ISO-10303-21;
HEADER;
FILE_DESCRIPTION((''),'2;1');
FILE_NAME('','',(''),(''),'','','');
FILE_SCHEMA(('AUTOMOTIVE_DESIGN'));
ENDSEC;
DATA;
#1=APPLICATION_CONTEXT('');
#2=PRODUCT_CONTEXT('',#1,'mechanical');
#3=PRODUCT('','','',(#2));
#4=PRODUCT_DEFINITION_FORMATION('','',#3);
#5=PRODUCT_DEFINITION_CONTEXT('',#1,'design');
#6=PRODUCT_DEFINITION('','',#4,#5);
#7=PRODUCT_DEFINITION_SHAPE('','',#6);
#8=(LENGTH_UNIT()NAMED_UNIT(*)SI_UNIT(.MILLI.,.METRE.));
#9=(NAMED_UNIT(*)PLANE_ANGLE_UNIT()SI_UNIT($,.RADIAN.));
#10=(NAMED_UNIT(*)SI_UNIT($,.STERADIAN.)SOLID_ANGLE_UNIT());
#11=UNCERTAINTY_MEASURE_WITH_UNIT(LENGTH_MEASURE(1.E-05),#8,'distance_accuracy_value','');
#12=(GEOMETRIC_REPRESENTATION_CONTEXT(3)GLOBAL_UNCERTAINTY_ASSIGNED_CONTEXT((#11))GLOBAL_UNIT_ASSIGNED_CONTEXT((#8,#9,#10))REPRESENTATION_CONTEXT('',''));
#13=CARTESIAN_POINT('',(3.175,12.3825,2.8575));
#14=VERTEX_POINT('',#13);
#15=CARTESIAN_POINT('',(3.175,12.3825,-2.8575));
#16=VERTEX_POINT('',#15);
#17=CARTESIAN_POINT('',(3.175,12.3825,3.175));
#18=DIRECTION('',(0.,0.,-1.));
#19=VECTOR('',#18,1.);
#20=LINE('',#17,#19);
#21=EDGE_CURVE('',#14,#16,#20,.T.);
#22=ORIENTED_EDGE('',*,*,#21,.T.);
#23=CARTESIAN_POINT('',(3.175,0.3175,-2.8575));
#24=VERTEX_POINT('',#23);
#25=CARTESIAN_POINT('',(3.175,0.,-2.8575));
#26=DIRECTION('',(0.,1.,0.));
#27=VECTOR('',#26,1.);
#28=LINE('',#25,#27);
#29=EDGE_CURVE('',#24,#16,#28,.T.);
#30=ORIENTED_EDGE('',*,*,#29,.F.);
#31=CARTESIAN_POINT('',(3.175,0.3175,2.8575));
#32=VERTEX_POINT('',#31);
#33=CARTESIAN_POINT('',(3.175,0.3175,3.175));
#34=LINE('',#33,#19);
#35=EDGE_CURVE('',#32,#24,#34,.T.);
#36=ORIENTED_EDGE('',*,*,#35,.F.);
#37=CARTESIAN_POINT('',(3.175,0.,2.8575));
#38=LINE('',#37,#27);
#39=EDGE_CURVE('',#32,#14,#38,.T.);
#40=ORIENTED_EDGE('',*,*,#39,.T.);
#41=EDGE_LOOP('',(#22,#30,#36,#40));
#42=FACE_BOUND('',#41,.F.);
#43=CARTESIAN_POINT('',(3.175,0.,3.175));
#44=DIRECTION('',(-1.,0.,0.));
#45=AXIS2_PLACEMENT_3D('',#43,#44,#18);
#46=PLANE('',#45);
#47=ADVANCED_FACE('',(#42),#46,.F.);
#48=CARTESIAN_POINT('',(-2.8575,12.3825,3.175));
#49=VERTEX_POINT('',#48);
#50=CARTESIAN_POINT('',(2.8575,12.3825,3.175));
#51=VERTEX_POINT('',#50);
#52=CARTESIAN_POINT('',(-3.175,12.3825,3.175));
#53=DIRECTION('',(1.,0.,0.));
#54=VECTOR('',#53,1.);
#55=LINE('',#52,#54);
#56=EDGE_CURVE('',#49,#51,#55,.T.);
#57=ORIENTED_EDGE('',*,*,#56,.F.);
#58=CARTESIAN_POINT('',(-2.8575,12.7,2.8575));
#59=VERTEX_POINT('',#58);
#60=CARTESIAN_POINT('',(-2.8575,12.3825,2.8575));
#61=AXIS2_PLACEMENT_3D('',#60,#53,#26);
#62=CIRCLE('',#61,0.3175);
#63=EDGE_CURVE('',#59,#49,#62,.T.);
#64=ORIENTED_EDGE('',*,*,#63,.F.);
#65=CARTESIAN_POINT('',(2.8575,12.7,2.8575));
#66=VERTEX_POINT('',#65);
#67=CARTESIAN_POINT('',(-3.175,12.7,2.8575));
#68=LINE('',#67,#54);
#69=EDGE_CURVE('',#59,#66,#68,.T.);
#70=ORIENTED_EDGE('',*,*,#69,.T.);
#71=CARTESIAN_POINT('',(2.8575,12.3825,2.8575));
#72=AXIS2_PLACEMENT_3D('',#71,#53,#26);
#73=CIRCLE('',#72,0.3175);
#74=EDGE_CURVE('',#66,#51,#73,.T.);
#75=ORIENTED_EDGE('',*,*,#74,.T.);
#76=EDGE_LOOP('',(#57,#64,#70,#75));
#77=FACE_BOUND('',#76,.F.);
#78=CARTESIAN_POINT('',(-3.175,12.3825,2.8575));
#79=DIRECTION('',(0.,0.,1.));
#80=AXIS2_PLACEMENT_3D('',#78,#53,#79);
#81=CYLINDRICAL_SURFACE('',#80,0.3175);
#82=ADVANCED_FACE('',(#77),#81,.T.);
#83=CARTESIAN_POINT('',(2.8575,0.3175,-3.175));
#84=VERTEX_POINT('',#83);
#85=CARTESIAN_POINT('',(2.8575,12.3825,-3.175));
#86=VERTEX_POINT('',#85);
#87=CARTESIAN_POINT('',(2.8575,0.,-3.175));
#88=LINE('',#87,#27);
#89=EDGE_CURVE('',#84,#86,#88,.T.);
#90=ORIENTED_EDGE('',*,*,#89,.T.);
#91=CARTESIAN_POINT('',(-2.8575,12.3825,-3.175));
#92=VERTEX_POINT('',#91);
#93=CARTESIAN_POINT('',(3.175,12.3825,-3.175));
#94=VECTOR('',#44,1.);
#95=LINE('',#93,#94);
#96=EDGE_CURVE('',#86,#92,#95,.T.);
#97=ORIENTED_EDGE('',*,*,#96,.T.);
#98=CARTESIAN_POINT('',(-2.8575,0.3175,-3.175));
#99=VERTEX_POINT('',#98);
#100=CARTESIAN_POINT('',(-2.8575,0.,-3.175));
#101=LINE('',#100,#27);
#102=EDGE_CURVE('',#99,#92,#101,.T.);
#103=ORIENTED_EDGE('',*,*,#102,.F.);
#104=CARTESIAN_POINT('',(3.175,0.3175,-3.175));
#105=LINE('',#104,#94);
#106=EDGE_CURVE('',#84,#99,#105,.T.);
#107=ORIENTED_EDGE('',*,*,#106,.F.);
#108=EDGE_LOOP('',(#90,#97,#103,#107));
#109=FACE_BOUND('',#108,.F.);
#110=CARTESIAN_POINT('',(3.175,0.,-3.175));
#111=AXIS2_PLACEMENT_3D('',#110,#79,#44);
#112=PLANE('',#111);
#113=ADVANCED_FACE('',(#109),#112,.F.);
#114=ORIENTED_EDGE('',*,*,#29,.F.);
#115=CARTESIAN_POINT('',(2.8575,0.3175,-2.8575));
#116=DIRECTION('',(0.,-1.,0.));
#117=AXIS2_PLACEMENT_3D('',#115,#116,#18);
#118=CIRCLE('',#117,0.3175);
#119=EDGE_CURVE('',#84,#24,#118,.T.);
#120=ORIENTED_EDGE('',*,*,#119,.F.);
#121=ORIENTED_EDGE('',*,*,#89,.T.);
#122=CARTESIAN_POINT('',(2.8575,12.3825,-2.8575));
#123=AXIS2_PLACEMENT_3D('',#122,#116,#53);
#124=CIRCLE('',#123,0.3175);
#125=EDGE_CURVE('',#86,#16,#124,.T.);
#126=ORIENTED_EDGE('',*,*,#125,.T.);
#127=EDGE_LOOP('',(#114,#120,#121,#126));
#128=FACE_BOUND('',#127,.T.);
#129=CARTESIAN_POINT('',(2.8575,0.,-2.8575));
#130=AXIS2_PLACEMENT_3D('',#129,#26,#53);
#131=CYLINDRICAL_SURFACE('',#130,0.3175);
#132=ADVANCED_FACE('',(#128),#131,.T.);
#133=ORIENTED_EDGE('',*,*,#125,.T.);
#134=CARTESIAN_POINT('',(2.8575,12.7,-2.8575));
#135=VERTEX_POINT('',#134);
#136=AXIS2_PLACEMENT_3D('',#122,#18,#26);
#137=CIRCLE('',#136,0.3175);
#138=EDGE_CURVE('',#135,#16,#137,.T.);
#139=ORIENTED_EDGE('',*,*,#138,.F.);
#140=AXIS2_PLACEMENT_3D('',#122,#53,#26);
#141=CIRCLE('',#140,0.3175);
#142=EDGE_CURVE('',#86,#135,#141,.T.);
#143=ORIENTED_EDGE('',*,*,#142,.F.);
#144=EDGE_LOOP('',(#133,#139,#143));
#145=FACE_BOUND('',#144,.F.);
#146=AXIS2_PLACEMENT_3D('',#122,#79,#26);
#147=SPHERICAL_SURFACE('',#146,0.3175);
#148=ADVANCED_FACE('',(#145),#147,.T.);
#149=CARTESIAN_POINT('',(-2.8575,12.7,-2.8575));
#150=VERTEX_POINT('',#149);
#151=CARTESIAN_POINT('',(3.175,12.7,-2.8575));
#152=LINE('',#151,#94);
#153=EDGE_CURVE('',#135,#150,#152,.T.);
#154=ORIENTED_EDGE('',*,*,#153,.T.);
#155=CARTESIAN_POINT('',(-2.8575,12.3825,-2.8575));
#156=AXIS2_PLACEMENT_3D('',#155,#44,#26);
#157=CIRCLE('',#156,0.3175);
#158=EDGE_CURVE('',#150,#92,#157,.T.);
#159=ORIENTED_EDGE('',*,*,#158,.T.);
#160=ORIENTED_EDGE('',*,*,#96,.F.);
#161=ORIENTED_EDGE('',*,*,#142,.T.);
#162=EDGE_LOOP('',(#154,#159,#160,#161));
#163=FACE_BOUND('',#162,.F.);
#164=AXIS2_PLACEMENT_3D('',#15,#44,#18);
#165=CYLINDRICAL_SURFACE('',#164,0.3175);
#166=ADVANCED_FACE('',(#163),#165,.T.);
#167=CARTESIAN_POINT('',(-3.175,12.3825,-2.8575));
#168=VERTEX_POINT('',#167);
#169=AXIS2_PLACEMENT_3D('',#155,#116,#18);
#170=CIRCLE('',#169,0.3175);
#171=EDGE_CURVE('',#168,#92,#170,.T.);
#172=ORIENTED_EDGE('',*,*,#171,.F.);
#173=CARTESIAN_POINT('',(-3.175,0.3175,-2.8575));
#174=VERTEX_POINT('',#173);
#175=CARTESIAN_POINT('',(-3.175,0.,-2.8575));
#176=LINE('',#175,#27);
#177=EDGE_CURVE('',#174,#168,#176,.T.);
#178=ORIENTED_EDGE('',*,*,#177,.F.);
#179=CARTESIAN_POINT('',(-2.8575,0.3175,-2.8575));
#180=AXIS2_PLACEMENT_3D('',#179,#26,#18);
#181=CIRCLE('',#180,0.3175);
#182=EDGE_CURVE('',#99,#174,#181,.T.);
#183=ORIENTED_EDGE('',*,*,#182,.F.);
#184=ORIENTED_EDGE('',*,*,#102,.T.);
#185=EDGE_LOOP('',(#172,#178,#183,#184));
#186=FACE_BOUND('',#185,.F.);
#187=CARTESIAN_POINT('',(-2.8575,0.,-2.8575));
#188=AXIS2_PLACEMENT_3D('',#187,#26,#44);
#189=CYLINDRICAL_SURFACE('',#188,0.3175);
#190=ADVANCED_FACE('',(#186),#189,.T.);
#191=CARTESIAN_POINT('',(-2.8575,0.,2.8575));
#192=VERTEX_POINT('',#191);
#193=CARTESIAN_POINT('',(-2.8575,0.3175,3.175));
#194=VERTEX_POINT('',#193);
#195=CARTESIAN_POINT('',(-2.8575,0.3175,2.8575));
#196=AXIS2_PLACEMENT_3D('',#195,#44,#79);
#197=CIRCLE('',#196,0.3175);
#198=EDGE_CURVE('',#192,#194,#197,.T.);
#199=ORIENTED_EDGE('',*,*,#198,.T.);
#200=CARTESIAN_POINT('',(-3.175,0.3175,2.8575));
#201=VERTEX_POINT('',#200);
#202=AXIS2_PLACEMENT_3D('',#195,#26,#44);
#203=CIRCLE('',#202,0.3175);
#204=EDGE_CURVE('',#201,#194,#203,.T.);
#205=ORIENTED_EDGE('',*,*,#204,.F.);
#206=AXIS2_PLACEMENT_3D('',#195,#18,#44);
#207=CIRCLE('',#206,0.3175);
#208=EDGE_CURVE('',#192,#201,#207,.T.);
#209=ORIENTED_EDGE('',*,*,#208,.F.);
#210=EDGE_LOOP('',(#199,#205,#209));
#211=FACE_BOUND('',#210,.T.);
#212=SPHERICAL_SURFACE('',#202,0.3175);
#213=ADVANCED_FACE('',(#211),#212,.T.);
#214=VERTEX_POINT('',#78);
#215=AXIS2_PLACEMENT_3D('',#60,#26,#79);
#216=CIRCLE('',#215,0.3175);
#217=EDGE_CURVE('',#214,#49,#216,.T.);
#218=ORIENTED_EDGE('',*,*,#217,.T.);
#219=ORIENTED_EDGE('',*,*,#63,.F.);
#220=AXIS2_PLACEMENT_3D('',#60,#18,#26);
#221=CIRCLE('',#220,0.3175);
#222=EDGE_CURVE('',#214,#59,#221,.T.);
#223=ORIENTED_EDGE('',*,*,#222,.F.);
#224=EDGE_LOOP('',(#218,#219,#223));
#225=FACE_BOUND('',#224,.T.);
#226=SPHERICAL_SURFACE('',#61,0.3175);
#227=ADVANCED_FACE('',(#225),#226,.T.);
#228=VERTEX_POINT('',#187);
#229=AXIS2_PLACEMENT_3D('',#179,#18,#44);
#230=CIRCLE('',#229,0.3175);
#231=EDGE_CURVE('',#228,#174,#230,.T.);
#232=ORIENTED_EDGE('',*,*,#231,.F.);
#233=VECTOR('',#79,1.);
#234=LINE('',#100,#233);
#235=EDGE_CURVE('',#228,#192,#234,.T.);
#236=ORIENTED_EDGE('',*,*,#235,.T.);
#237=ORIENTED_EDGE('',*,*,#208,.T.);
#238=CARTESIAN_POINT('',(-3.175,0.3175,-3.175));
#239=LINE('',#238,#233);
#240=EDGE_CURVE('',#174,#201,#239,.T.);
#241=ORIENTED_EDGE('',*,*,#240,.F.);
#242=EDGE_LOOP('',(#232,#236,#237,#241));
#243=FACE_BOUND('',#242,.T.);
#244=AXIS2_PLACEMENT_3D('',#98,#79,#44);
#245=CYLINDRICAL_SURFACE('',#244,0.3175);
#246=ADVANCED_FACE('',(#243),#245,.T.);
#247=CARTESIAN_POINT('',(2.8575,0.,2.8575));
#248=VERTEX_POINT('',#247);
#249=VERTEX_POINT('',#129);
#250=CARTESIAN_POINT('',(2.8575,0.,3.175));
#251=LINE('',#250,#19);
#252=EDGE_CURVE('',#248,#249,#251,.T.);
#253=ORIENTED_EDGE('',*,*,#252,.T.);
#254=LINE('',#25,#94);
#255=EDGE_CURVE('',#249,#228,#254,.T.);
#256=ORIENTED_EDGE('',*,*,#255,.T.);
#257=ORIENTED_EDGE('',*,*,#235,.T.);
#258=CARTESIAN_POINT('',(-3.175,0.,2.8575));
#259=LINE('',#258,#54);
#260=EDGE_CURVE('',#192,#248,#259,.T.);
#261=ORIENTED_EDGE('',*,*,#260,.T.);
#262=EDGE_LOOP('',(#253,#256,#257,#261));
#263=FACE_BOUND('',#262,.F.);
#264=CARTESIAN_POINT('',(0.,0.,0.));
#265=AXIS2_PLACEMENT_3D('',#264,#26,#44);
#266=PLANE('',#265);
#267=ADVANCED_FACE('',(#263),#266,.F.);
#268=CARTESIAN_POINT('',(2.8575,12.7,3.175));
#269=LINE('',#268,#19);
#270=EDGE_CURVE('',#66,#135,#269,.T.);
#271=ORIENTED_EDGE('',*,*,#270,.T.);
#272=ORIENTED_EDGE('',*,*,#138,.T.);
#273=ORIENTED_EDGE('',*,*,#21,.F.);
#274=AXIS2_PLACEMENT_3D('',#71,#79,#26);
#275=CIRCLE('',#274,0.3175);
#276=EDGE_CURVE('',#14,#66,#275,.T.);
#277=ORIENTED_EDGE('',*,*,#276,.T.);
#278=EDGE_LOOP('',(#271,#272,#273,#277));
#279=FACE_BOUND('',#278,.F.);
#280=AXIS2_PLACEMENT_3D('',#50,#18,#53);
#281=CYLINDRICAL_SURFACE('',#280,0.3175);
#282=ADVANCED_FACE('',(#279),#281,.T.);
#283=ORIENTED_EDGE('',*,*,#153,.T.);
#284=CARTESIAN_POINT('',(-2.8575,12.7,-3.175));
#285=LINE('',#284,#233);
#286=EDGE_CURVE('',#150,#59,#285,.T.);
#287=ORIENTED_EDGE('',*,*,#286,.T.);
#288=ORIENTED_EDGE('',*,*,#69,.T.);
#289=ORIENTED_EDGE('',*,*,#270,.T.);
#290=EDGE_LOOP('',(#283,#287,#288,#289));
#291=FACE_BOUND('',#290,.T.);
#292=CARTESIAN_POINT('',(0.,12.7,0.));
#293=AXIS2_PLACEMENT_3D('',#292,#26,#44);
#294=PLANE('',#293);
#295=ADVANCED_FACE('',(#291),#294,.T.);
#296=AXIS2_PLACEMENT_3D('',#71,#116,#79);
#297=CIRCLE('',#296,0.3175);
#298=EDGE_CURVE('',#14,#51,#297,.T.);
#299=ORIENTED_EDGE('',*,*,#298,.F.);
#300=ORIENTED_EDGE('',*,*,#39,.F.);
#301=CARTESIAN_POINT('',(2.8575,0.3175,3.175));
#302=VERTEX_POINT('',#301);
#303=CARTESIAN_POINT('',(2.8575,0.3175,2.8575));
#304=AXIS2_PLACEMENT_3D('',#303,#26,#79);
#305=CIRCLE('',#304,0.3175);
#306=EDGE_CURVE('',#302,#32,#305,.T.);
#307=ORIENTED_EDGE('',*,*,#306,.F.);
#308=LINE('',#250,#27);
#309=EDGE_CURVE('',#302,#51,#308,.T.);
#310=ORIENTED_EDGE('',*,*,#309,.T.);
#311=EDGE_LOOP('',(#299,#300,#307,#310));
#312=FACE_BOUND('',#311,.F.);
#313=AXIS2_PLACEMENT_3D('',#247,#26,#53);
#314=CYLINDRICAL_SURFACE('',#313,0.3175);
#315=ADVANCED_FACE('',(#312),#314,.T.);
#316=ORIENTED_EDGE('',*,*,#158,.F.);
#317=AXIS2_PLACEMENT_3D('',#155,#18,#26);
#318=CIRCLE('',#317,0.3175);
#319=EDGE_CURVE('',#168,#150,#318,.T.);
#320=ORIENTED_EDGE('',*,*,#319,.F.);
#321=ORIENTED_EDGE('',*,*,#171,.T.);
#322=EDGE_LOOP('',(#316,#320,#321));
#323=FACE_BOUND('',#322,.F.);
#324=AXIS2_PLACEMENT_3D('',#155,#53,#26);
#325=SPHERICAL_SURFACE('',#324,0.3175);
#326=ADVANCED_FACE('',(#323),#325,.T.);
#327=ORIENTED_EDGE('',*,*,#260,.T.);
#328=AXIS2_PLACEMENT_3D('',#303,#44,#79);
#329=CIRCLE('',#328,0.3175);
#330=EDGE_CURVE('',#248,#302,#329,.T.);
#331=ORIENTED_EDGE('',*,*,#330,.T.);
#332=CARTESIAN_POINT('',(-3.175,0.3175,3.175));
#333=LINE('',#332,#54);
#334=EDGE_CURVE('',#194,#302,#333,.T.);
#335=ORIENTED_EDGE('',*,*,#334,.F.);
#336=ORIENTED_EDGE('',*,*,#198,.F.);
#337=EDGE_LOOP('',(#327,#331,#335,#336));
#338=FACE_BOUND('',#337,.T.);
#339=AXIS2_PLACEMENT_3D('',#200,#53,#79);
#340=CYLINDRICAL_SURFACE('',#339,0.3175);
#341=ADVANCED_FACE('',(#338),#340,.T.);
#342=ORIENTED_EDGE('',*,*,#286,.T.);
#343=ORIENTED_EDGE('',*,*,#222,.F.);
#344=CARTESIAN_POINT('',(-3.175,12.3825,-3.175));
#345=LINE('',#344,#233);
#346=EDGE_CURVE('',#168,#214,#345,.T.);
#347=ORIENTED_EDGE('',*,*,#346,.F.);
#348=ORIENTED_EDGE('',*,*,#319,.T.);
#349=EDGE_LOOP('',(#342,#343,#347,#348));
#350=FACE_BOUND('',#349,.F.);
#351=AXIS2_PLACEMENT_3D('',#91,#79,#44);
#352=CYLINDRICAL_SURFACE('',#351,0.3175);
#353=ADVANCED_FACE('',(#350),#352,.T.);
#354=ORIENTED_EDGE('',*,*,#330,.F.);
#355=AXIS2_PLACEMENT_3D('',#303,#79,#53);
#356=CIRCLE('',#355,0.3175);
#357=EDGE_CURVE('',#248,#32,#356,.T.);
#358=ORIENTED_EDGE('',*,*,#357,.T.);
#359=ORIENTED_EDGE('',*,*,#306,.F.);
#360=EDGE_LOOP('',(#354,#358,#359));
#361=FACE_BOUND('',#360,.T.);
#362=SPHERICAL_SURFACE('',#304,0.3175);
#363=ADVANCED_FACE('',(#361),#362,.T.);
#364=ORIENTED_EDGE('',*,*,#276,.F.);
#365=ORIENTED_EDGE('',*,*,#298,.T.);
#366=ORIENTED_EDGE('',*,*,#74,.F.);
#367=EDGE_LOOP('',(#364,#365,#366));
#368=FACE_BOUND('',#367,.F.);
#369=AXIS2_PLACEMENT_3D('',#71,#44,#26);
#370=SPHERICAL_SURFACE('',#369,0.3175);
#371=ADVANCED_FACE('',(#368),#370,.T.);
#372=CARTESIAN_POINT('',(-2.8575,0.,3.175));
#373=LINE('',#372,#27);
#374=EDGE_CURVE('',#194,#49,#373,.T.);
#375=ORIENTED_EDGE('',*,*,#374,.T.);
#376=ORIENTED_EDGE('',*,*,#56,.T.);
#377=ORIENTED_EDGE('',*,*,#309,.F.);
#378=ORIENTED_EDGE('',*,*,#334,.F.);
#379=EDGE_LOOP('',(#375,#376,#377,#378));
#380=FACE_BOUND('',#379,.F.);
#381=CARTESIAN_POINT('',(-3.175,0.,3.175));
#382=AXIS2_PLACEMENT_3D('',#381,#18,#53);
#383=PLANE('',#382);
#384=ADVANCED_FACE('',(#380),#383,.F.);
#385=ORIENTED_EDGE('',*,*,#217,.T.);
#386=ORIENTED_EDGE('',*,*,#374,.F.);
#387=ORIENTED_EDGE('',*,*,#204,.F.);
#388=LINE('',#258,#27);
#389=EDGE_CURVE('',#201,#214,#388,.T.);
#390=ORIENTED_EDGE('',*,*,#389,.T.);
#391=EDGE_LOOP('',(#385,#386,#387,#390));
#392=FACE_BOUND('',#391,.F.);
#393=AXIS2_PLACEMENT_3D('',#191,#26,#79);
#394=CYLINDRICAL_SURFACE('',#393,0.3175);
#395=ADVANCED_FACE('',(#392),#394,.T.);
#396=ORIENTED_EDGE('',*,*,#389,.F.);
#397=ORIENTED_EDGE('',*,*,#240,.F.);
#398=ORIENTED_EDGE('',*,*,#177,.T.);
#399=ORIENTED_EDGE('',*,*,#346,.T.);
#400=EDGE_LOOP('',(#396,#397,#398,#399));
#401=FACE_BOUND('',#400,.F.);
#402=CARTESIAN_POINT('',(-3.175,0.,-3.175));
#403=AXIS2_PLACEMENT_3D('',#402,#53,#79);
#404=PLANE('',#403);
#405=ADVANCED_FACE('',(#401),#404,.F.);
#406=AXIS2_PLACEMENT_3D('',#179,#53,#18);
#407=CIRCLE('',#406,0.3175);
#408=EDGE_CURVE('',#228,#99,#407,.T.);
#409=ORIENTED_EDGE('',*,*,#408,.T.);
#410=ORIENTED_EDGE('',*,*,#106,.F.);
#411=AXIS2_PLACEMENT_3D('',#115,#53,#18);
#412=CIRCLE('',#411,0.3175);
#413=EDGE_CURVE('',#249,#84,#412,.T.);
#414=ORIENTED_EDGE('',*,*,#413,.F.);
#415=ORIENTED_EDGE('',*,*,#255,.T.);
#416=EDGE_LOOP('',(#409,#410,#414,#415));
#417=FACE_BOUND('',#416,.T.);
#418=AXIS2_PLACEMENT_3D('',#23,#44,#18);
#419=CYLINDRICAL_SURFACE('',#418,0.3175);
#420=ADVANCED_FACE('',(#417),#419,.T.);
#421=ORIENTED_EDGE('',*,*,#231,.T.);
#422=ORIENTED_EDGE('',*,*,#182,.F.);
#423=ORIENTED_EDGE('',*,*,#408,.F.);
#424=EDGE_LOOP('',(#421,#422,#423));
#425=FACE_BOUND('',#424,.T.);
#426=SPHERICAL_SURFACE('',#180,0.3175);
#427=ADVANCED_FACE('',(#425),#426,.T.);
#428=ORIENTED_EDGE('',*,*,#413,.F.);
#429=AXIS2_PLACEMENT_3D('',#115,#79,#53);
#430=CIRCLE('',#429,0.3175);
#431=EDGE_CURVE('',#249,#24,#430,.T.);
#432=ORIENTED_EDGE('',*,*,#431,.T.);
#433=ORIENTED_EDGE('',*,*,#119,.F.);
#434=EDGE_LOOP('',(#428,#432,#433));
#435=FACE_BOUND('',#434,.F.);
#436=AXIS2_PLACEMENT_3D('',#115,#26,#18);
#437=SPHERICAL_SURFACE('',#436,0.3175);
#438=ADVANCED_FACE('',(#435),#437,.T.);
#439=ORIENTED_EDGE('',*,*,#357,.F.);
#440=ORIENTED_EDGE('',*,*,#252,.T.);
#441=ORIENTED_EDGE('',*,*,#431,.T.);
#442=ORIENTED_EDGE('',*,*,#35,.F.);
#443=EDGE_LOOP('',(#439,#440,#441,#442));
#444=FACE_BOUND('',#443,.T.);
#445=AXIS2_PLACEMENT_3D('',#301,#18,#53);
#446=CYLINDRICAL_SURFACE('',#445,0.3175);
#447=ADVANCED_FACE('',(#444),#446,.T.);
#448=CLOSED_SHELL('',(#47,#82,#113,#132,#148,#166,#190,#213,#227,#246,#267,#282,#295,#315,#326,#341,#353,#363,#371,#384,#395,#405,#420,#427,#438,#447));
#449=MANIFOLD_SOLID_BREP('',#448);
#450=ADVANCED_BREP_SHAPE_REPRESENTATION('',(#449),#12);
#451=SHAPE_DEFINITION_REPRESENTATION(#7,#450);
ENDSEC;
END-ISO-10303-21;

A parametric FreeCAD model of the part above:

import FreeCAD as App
import Part
import Sketcher
Q = App.Units.Quantity

doc = App.newDocument("Part")
body = doc.addObject("PartDesign::Body", "Body")

sketch1 = body.newObject("Sketcher::SketchObject", "Sketch")
sketch1.AttachmentSupport = (doc.getObject("XZ_Plane"), [""])
sketch1.MapMode = "FlatFace"
sketch1.addGeometry(Part.LineSegment(App.Vector(3, 3, 0), App.Vector(3, -3, 0)), False)
sketch1.addGeometry(Part.LineSegment(App.Vector(3, -3, 0), App.Vector(-3, -3, 0)), False)
sketch1.addGeometry(Part.LineSegment(App.Vector(-3, -3, 0), App.Vector(-3, 3, 0)), False)
sketch1.addGeometry(Part.LineSegment(App.Vector(-3, 3, 0), App.Vector(3, 3, 0)), False)
sketch1.addConstraint(Sketcher.Constraint("Coincident", 0, 2, 1, 1))
sketch1.addConstraint(Sketcher.Constraint("Coincident", 1, 2, 2, 1))
sketch1.addConstraint(Sketcher.Constraint("Coincident", 2, 2, 3, 1))
sketch1.addConstraint(Sketcher.Constraint("Coincident", 3, 2, 0, 1))
sketch1.addConstraint(Sketcher.Constraint("Vertical", 0))
sketch1.addConstraint(Sketcher.Constraint("Horizontal", 1))
sketch1.addConstraint(Sketcher.Constraint("Vertical", 2))
sketch1.addConstraint(Sketcher.Constraint("Horizontal", 3))
sketch1.addConstraint(Sketcher.Constraint("Symmetric", 0, 2, 2, 2, -1, 1))
sketch1.addConstraint(Sketcher.Constraint("Equal", 3, 0))
sketch1.addConstraint(Sketcher.Constraint("DistanceX", 1, 2, 1, 1, Q("0.25 in")))
pad1 = body.newObject("PartDesign::Pad", "Pad")
pad1.Profile = sketch1
pad1.Length = Q("0.5 in")
pad1.Reversed = True
doc.recompute()

fillet = body.newObject("PartDesign::Fillet", "Fillet")
fillet.Base = (pad1, ["Edge1"])
fillet.UseAllEdges = True
fillet.Radius = Q("0.0125 in")

doc.recompute()
